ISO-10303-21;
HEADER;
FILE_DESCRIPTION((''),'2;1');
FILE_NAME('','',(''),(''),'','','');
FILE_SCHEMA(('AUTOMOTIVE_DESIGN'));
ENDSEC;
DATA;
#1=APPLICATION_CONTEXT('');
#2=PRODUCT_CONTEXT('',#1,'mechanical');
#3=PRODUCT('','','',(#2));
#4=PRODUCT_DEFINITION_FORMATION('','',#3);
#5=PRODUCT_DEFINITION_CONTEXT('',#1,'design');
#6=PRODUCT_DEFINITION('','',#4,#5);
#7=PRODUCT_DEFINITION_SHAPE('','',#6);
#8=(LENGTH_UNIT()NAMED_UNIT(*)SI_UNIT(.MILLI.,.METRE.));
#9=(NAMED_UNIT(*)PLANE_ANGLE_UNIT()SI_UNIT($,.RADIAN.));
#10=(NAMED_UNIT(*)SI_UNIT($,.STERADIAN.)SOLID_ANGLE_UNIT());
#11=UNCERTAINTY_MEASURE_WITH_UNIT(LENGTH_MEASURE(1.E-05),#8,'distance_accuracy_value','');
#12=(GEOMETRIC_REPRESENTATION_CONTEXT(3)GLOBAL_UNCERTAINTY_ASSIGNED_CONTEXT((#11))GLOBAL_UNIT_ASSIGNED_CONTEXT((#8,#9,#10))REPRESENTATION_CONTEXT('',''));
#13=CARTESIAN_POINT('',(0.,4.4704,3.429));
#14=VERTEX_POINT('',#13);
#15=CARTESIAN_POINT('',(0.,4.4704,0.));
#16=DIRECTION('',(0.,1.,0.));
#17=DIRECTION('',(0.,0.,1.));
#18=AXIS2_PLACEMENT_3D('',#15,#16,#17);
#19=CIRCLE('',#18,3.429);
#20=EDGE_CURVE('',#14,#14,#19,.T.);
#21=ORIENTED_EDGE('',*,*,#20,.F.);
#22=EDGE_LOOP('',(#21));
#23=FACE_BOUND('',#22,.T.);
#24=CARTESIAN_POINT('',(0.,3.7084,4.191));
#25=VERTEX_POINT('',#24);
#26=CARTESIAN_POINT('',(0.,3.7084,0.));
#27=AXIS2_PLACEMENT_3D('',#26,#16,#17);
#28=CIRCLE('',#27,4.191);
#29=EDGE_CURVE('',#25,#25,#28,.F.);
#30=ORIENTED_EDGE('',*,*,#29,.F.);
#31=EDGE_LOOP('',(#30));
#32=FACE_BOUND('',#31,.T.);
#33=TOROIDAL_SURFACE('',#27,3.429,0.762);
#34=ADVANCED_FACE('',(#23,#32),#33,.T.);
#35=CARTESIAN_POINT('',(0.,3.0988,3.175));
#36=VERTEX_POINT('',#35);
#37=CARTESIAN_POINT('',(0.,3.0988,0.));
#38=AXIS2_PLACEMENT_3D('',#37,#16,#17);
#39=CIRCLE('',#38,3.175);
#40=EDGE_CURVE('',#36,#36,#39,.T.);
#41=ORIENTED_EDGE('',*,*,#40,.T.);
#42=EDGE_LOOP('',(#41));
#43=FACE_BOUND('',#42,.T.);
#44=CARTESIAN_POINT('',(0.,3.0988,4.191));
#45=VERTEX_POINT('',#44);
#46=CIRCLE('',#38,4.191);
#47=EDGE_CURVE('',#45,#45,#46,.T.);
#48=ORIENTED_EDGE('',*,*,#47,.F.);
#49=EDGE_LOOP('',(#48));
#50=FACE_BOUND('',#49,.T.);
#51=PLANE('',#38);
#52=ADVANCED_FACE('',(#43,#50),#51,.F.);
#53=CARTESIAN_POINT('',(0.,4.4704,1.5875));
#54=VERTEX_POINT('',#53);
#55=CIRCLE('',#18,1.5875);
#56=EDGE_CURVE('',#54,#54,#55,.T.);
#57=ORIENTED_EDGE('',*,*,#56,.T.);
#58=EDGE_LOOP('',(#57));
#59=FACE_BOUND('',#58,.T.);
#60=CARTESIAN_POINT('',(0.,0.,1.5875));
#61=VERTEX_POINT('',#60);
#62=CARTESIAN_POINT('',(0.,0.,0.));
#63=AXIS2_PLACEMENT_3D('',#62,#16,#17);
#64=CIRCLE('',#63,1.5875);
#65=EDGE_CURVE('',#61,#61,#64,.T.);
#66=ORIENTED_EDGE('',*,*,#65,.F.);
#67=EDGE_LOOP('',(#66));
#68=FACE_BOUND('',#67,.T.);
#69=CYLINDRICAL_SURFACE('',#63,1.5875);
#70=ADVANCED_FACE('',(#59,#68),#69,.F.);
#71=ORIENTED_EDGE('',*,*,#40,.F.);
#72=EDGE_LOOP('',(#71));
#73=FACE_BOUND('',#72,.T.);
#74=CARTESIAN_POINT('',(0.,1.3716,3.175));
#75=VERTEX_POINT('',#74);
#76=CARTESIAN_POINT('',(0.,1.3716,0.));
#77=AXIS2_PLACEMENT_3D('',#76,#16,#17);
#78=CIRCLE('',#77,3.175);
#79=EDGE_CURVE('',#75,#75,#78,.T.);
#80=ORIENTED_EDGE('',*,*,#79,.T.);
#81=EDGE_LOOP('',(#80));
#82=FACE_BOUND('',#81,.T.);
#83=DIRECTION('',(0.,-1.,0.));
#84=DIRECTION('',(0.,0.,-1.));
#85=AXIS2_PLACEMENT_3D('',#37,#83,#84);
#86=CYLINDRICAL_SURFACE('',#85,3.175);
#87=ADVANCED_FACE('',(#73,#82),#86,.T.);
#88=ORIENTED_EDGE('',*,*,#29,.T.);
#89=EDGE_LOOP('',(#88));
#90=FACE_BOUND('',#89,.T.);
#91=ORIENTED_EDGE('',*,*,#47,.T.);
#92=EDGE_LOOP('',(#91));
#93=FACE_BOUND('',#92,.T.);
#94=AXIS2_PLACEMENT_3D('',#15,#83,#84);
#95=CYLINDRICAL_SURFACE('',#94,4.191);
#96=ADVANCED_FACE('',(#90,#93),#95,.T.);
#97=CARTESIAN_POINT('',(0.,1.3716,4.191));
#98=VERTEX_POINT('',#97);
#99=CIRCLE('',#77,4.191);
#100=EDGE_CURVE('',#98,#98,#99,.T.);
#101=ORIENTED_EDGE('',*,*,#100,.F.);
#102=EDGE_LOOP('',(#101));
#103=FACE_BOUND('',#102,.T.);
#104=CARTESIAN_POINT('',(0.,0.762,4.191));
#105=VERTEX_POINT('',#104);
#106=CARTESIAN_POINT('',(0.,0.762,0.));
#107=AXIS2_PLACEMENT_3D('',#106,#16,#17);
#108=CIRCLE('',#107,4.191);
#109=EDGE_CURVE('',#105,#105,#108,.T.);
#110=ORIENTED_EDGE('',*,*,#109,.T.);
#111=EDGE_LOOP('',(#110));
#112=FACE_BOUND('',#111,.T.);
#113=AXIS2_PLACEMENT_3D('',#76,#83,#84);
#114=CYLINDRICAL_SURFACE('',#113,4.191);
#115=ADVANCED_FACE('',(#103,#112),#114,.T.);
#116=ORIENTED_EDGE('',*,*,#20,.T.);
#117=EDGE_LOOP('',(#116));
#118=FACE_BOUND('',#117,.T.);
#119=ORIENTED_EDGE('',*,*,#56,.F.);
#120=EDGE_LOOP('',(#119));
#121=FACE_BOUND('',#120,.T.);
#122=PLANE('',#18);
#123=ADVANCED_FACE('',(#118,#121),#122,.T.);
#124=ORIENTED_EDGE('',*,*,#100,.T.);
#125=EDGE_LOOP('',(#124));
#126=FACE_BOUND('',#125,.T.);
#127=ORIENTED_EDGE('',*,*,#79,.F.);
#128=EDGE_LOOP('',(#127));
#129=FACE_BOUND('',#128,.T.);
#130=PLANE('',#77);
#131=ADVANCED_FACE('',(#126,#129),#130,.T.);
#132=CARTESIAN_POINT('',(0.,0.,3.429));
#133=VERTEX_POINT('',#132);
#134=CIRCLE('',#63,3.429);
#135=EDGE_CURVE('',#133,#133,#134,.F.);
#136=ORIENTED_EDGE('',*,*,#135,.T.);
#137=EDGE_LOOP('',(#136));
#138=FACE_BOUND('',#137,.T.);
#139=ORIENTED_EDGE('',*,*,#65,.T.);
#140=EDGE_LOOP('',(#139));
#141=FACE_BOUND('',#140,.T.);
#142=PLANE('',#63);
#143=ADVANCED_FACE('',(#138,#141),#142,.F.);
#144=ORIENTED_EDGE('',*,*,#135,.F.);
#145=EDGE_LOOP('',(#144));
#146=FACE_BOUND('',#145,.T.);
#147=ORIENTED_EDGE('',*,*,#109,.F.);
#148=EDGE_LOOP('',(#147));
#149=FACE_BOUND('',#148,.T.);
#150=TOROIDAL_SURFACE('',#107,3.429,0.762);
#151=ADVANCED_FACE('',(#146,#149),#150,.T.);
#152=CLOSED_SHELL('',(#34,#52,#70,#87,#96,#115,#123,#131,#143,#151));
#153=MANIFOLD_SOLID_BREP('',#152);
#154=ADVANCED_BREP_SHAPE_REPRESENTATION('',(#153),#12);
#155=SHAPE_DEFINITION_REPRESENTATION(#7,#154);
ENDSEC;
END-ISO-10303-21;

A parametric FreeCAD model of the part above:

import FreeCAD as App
import Part
import Sketcher

V = App.Vector
Q = App.Units.Quantity


def edges_at(feature, points):
    """Names of the edges that pass closest to the given points."""
    edges = feature.Shape.Edges
    near = lambda p: min(range(len(edges)), key=lambda i: edges[i].distToShape(Part.Vertex(*p))[0])
    return sorted({f"Edge{near(p) + 1}" for p in points})

doc = App.newDocument("Part")
params = doc.addObject("Spreadsheet::Sheet", "Params")
for row, (alias, value) in enumerate([
    ("sketch1_diameter", "0.33 in"),
    ("pad1_length", "0.054 in"),
    ("sketch2_diameter", "0.25 in"),
    ("pad2_length", "0.068 in"),
    ("sketch3_diameter", "0.33 in"),
    ("pad3_length", "0.054 in"),
    ("sketch4_diameter", "0.125 in"),
    ("fillet_radius", "0.03 in"),
], start=1):
    params.set(f"A{row}", alias)
    params.set(f"B{row}", "=" + value)
    params.setAlias(f"B{row}", alias)

body = doc.addObject("PartDesign::Body", "Body")

# Sketch on XZ plane
sketch1 = doc.addObject("Sketcher::SketchObject", "Sketch")
body.addObject(sketch1)
sketch1.AttachmentSupport = (doc.XZ_Plane, [""])
sketch1.MapMode = "FlatFace"
sketch1.addGeometry(Part.Circle(V(0, 0, 0), V(0, 0, 1), 4.191), False)
sketch1.addConstraint(Sketcher.Constraint("Coincident", 0, 3, -1, 1))
sketch1.addConstraint(Sketcher.Constraint("Diameter", 0, Q("0.33 in")))
sketch1.setExpression("Constraints[1]", "Params.sketch1_diameter")
pad1 = doc.addObject("PartDesign::Pad", "Pad")
body.addObject(pad1)
pad1.Profile = sketch1
pad1.setExpression("Length", "Params.pad1_length")
pad1.Reversed = True

# Sketch on XZ plane
sketch2 = doc.addObject("Sketcher::SketchObject", "Sketch001")
body.addObject(sketch2)
sketch2.AttachmentSupport = (doc.XZ_Plane, [""])
sketch2.MapMode = "FlatFace"
sketch2.AttachmentOffset = App.Placement(V(0, 0, -0.054 * 25.4), App.Rotation())
sketch2.addGeometry(Part.Circle(V(0, 0, 0), V(0, 0, 1), 3.175), False)
sketch2.addConstraint(Sketcher.Constraint("Coincident", 0, 3, -1, 1))
sketch2.addConstraint(Sketcher.Constraint("Diameter", 0, Q("0.25 in")))
sketch2.setExpression("Constraints[1]", "Params.sketch2_diameter")
pad2 = doc.addObject("PartDesign::Pad", "Pad001")
body.addObject(pad2)
pad2.Profile = sketch2
pad2.setExpression("Length", "Params.pad2_length")
pad2.Reversed = True

# Sketch on XZ plane
sketch3 = doc.addObject("Sketcher::SketchObject", "Sketch002")
body.addObject(sketch3)
sketch3.AttachmentSupport = (doc.XZ_Plane, [""])
sketch3.MapMode = "FlatFace"
sketch3.AttachmentOffset = App.Placement(V(0, 0, -0.122 * 25.4), App.Rotation())
sketch3.addGeometry(Part.Circle(V(0, 0, 0), V(0, 0, 1), 4.191), False)
sketch3.addConstraint(Sketcher.Constraint("Coincident", 0, 3, -1, 1))
sketch3.addConstraint(Sketcher.Constraint("Diameter", 0, Q("0.33 in")))
sketch3.setExpression("Constraints[1]", "Params.sketch3_diameter")
pad3 = doc.addObject("PartDesign::Pad", "Pad002")
body.addObject(pad3)
pad3.Profile = sketch3
pad3.setExpression("Length", "Params.pad3_length")
pad3.Reversed = True

# Sketch on XZ plane
sketch4 = doc.addObject("Sketcher::SketchObject", "Sketch003")
body.addObject(sketch4)
sketch4.AttachmentSupport = (doc.XZ_Plane, [""])
sketch4.MapMode = "FlatFace"
sketch4.AttachmentOffset = App.Placement(V(0, 0, -0.176 * 25.4), App.Rotation())
sketch4.addGeometry(Part.Circle(V(0, 0, 0), V(0, 0, 1), 1.5875), False)
sketch4.addConstraint(Sketcher.Constraint("Coincident", 0, 3, -1, 1))
sketch4.addConstraint(Sketcher.Constraint("Diameter", 0, Q("0.125 in")))
sketch4.setExpression("Constraints[1]", "Params.sketch4_diameter")
pocket1 = doc.addObject("PartDesign::Pocket", "Pocket")
body.addObject(pocket1)
pocket1.Profile = sketch4
pocket1.Type = "ThroughAll"
pocket1.Reversed = True
doc.recompute()

fillet = doc.addObject("PartDesign::Fillet", "Fillet")
body.addObject(fillet)
fillet.Base = (pocket1, edges_at(pocket1, [(-4.191, 4.47, 0), (-4.191, 0, 0)]))
fillet.setExpression("Radius", "Params.fillet_radius")

doc.recompute()
